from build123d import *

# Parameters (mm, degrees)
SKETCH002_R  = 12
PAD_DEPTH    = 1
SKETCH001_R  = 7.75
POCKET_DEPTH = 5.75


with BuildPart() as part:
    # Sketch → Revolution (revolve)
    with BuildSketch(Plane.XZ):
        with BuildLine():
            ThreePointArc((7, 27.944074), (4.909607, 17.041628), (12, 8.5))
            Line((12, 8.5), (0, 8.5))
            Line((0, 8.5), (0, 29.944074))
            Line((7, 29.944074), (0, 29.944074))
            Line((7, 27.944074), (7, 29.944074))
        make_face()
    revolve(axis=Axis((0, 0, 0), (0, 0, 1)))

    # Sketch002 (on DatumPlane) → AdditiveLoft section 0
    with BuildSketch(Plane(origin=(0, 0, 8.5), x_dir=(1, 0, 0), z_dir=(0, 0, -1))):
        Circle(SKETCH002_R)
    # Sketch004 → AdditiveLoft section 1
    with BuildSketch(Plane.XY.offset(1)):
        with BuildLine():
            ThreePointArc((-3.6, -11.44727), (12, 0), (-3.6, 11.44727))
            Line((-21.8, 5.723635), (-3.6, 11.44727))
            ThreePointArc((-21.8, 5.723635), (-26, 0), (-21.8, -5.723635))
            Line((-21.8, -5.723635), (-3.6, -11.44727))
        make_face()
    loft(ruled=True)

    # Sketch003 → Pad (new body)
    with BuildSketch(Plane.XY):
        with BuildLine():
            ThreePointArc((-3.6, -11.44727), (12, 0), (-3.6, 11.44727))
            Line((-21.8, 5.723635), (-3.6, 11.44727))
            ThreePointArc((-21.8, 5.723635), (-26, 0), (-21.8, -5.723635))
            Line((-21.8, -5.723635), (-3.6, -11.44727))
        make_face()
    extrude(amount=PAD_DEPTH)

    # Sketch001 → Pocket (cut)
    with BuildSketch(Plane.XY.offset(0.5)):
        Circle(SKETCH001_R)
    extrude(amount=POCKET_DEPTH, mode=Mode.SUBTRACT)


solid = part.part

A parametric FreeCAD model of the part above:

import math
import FreeCAD as App
import Part
import Sketcher
Q = App.Units.Quantity

doc = App.newDocument("Part")
body = doc.addObject("PartDesign::Body", "Body")

sketch1 = body.newObject("Sketcher::SketchObject", "Sketch")
sketch1.AttachmentSupport = (doc.getObject("XZ_Plane"), [""])
sketch1.MapMode = "FlatFace"
sketch1.addGeometry(Part.ArcOfCircle(Part.Circle(App.Vector(17.5, 20.3, 0), App.Vector(0, 0, 1), 13), math.radians(144), math.radians(245)), False)
sketch1.addGeometry(Part.LineSegment(App.Vector(7, 27.9, 0), App.Vector(7, 29.9, 0)), False)
sketch1.addGeometry(Part.LineSegment(App.Vector(7, 29.9, 0), App.Vector(0, 29.9, 0)), False)
sketch1.addGeometry(Part.LineSegment(App.Vector(0, 29.9, 0), App.Vector(0, 8.5, 0)), False)
sketch1.addGeometry(Part.LineSegment(App.Vector(0, 8.5, 0), App.Vector(12, 8.5, 0)), False)
sketch1.addConstraint(Sketcher.Constraint("Coincident", 0, 1, 1, 1))
sketch1.addConstraint(Sketcher.Constraint("Coincident", 1, 2, 2, 1))
sketch1.addConstraint(Sketcher.Constraint("Coincident", 2, 2, 3, 1))
sketch1.addConstraint(Sketcher.Constraint("Coincident", 3, 2, 4, 1))
sketch1.addConstraint(Sketcher.Constraint("Coincident", 4, 2, 0, 2))
sketch1.addConstraint(Sketcher.Constraint("Vertical", 1))
sketch1.addConstraint(Sketcher.Constraint("Horizontal", 2))
sketch1.addConstraint(Sketcher.Constraint("Vertical", 3))
sketch1.addConstraint(Sketcher.Constraint("Horizontal", 4))
sketch1.addConstraint(Sketcher.Constraint("PointOnObject", 2, 2, -2))
sketch1.addConstraint(Sketcher.Constraint("Radius", 0, Q("13.000001 mm")))
sketch1.addConstraint(Sketcher.Constraint("DistanceX", 2, 2, 2, 1, Q("7 mm")))
sketch1.addConstraint(Sketcher.Constraint("DistanceX", 4, 1, 4, 2, Q("12 mm")))
sketch1.addConstraint(Sketcher.Constraint("DistanceY", 1, 1, 1, 2, Q("2 mm")))
sketch1.addConstraint(Sketcher.Constraint("DistanceX", -1, 1, 0, 3, Q("17.500001 mm")))
sketch1.addConstraint(Sketcher.Constraint("DistanceY", -1, 1, 3, 2, Q("8.5 mm")))
revolution = body.newObject("PartDesign::Revolution", "Revolution")
revolution.Profile = sketch1
revolution.ReferenceAxis = (sketch1, ["V_Axis"])
revolution.Angle = 360

sketch2 = body.newObject("Sketcher::SketchObject", "Sketch001")
sketch2.AttachmentSupport = (doc.getObject("XY_Plane"), [""])
sketch2.MapMode = "FlatFace"
sketch2.AttachmentOffset = App.Placement(App.Vector(0, 0, 8.5), App.Rotation())
sketch2.addGeometry(Part.Circle(App.Vector(0, 0, 0), App.Vector(0, 0, 1), 12), False)
sketch2.addConstraint(Sketcher.Constraint("Coincident", 0, 3, -1, 1))
sketch2.addConstraint(Sketcher.Constraint("Diameter", 0, Q("24 mm")))

sketch3 = body.newObject("Sketcher::SketchObject", "Sketch002")
sketch3.AttachmentSupport = (doc.getObject("XY_Plane"), [""])
sketch3.MapMode = "FlatFace"
sketch3.AttachmentOffset = App.Placement(App.Vector(0, 0, 1), App.Rotation())
sketch3.addGeometry(Part.ArcOfCircle(Part.Circle(App.Vector(0, 0, 0), App.Vector(0, 0, 1), 12), math.radians(-107), math.radians(107)), False)
sketch3.addGeometry(Part.LineSegment(App.Vector(-4, 11, 0), App.Vector(-22, 6, 0)), False)
sketch3.addGeometry(Part.ArcOfCircle(Part.Circle(App.Vector(-20, 0, 0), App.Vector(0, 0, 1), 6), math.radians(107), math.radians(253)), False)
sketch3.addGeometry(Part.LineSegment(App.Vector(-22, -6, 0), App.Vector(-4, -11, 0)), False)
sketch3.addConstraint(Sketcher.Constraint("Tangent", 0, 2, 1, 1))
sketch3.addConstraint(Sketcher.Constraint("Tangent", 1, 2, 2, 1))
sketch3.addConstraint(Sketcher.Constraint("Tangent", 2, 2, 3, 1))
sketch3.addConstraint(Sketcher.Constraint("Tangent", 3, 2, 0, 1))
sketch3.addConstraint(Sketcher.Constraint("Coincident", 0, 3, -1, 1))
sketch3.addConstraint(Sketcher.Constraint("PointOnObject", 2, 3, -1))
sketch3.addConstraint(Sketcher.Constraint("Radius", 0, Q("12 mm")))
sketch3.addConstraint(Sketcher.Constraint("Radius", 2, Q("6 mm")))
sketch3.addConstraint(Sketcher.Constraint("DistanceX", 2, 3, -1, 1, Q("20 mm")))

additiveloft = body.newObject("PartDesign::AdditiveLoft", "AdditiveLoft")
additiveloft.Profile = sketch2
additiveloft.Sections = [sketch3]
additiveloft.Ruled = True

sketch4 = body.newObject("Sketcher::SketchObject", "Sketch003")
sketch4.AttachmentSupport = (doc.getObject("XY_Plane"), [""])
sketch4.MapMode = "FlatFace"
sketch4.addGeometry(Part.ArcOfCircle(Part.Circle(App.Vector(0, 0, 0), App.Vector(0, 0, 1), 12), math.radians(-107), math.radians(107)), False)
sketch4.addGeometry(Part.LineSegment(App.Vector(-4, 11, 0), App.Vector(-22, 6, 0)), False)
sketch4.addGeometry(Part.ArcOfCircle(Part.Circle(App.Vector(-20, 0, 0), App.Vector(0, 0, 1), 6), math.radians(107), math.radians(253)), False)
sketch4.addGeometry(Part.LineSegment(App.Vector(-22, -6, 0), App.Vector(-4, -11, 0)), False)
sketch4.addConstraint(Sketcher.Constraint("Tangent", 0, 2, 1, 1))
sketch4.addConstraint(Sketcher.Constraint("Tangent", 1, 2, 2, 1))
sketch4.addConstraint(Sketcher.Constraint("Tangent", 2, 2, 3, 1))
sketch4.addConstraint(Sketcher.Constraint("Tangent", 3, 2, 0, 1))
sketch4.addConstraint(Sketcher.Constraint("Coincident", 0, 3, -1, 1))
sketch4.addConstraint(Sketcher.Constraint("PointOnObject", 2, 3, -1))
sketch4.addConstraint(Sketcher.Constraint("Radius", 0, Q("12 mm")))
sketch4.addConstraint(Sketcher.Constraint("Radius", 2, Q("6 mm")))
sketch4.addConstraint(Sketcher.Constraint("DistanceX", 2, 3, -1, 1, Q("20 mm")))
pad1 = body.newObject("PartDesign::Pad", "Pad")
pad1.Profile = sketch4
pad1.Length = 1

sketch5 = body.newObject("Sketcher::SketchObject", "Sketch004")
sketch5.AttachmentSupport = (doc.getObject("XY_Plane"), [""])
sketch5.MapMode = "FlatFace"
sketch5.AttachmentOffset = App.Placement(App.Vector(0, 0, 0.5), App.Rotation())
sketch5.addGeometry(Part.Circle(App.Vector(0, 0, 0), App.Vector(0, 0, 1), 8), False)
sketch5.addConstraint(Sketcher.Constraint("Coincident", 0, 3, -1, 1))
sketch5.addConstraint(Sketcher.Constraint("Diameter", 0, Q("15.5 mm")))
pocket1 = body.newObject("PartDesign::Pocket", "Pocket")
pocket1.Profile = sketch5
pocket1.Length = 5.75
pocket1.Reversed = True

doc.recompute()
